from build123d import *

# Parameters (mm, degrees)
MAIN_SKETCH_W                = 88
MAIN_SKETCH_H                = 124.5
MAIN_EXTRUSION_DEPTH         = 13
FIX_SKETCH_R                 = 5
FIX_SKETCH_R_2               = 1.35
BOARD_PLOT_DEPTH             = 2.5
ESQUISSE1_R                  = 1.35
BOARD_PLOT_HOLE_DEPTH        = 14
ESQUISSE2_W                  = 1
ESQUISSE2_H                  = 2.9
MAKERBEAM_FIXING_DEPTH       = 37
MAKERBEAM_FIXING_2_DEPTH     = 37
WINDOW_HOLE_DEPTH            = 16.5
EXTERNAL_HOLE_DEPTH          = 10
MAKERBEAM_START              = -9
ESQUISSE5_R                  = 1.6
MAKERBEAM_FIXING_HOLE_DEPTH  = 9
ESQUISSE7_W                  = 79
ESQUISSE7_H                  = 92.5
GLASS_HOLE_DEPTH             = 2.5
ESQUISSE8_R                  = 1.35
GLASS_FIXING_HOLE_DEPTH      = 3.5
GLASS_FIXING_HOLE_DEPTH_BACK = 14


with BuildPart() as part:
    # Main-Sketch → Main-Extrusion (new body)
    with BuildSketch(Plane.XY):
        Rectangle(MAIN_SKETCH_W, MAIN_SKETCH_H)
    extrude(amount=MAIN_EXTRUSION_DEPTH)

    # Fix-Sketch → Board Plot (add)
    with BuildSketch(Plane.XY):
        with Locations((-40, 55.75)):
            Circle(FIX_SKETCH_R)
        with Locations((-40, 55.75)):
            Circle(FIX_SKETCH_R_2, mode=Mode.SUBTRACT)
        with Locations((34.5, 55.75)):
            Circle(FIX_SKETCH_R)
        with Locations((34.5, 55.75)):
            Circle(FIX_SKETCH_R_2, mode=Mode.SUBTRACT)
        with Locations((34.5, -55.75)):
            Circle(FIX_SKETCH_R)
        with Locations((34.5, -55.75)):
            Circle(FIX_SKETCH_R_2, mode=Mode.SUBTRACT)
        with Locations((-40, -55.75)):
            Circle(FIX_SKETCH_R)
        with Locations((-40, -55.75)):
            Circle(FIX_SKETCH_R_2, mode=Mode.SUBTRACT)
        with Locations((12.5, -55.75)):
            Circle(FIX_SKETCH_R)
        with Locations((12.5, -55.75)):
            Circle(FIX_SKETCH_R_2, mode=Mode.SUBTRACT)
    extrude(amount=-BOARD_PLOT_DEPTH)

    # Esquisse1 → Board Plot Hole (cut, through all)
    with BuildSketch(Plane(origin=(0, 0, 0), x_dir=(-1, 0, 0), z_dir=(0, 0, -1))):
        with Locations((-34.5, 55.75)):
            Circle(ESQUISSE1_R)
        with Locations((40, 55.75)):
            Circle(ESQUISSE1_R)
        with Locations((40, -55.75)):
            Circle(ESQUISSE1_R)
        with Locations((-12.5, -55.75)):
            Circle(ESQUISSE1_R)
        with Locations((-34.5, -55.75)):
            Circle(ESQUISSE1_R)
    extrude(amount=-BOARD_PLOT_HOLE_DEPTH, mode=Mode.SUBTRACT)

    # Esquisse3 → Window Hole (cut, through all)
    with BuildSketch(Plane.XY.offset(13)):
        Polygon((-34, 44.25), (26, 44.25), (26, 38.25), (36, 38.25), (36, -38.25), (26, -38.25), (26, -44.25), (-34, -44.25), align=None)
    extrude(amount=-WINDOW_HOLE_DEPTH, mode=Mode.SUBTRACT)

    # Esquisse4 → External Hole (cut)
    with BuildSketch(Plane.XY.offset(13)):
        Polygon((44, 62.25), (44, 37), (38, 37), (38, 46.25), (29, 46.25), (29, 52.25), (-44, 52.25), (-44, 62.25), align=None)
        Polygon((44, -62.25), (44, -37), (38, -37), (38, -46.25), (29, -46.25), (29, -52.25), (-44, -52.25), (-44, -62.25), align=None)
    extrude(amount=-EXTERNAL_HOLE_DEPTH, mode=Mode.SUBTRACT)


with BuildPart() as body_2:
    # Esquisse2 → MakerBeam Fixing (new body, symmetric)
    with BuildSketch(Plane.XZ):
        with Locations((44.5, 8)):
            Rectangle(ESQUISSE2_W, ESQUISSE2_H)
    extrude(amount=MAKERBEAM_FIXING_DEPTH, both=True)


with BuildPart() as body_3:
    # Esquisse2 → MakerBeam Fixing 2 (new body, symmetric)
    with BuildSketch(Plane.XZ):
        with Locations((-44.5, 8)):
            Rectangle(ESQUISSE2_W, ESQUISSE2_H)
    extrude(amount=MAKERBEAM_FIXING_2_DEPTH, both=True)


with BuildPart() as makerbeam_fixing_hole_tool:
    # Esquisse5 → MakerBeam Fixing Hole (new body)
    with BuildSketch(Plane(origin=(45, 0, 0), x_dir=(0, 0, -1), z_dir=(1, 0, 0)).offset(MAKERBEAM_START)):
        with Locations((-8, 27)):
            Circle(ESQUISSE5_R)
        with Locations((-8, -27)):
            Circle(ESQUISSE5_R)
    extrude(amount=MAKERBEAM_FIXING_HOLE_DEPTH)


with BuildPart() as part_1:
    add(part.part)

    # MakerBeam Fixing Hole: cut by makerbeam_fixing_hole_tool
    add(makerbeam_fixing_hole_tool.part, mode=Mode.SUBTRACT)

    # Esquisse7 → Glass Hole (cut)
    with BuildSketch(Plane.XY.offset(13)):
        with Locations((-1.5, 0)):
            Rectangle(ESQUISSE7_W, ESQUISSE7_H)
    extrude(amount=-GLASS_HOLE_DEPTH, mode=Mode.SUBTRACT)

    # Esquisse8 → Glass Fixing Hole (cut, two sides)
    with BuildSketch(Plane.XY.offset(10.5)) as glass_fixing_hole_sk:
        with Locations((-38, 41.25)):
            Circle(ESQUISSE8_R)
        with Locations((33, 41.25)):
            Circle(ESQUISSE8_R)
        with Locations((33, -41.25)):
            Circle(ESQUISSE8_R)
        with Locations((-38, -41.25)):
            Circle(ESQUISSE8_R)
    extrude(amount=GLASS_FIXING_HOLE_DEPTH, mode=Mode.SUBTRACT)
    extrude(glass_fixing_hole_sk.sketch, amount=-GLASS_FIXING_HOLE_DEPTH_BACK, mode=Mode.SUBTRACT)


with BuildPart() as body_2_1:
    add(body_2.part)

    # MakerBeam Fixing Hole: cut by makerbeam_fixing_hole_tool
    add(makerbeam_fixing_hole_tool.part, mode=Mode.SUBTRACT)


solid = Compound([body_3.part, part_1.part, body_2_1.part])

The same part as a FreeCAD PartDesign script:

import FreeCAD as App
import Part
import Sketcher

doc = App.newDocument("Part")
body = doc.addObject("PartDesign::Body", "Body")

# Sketch on XY plane
sketch1 = doc.addObject("Sketcher::SketchObject", "Sketch")
body.addObject(sketch1)
sketch1.AttachmentSupport = (doc.XY_Plane, [""])
sketch1.MapMode = "FlatFace"
sketch1.addGeometry(Part.LineSegment(App.Vector(-44, 62, 0), App.Vector(-44, -62, 0)), False)
sketch1.addGeometry(Part.LineSegment(App.Vector(-44, -62, 0), App.Vector(44, -62, 0)), False)
sketch1.addGeometry(Part.LineSegment(App.Vector(44, -62, 0), App.Vector(44, 62, 0)), False)
sketch1.addGeometry(Part.LineSegment(App.Vector(44, 62, 0), App.Vector(-44, 62, 0)), False)
sketch1.addConstraint(Sketcher.Constraint("Coincident", 0, 2, 1, 1))
sketch1.addConstraint(Sketcher.Constraint("Coincident", 1, 2, 2, 1))
sketch1.addConstraint(Sketcher.Constraint("Coincident", 2, 2, 3, 1))
sketch1.addConstraint(Sketcher.Constraint("Coincident", 3, 2, 0, 1))
sketch1.addConstraint(Sketcher.Constraint("Vertical", 0))
sketch1.addConstraint(Sketcher.Constraint("Horizontal", 1))
sketch1.addConstraint(Sketcher.Constraint("Vertical", 2))
sketch1.addConstraint(Sketcher.Constraint("Horizontal", 3))
sketch1.addConstraint(Sketcher.Constraint("Symmetric", 0, 2, 2, 2, -1, 1))
sketch1.addConstraint(Sketcher.Constraint("DistanceX", 1, 1, 1, 2, 88.0))
sketch1.addConstraint(Sketcher.Constraint("DistanceY", 0, 2, 0, 1, 124.5))
pad1 = doc.addObject("PartDesign::Pad", "Pad")
body.addObject(pad1)
pad1.Profile = sketch1
pad1.Length = 13

# Sketch on XY plane
sketch2 = doc.addObject("Sketcher::SketchObject", "Sketch001")
body.addObject(sketch2)
sketch2.AttachmentSupport = (doc.XY_Plane, [""])
sketch2.MapMode = "FlatFace"
sketch2.addGeometry(Part.Circle(App.Vector(-40, 55.8, 0), App.Vector(0, 0, 1), 5), False)
sketch2.addGeometry(Part.Circle(App.Vector(-40, 55.8, 0), App.Vector(0, 0, 1), 1.4), False)
sketch2.addGeometry(Part.Circle(App.Vector(34.5, 55.8, 0), App.Vector(0, 0, 1), 5), False)
sketch2.addGeometry(Part.Circle(App.Vector(34.5, 55.8, 0), App.Vector(0, 0, 1), 1.4), False)
sketch2.addGeometry(Part.Circle(App.Vector(34.5, -55.8, 0), App.Vector(0, 0, 1), 5), False)
sketch2.addGeometry(Part.Circle(App.Vector(34.5, -55.8, 0), App.Vector(0, 0, 1), 1.4), False)
sketch2.addGeometry(Part.Circle(App.Vector(-40, -55.8, 0), App.Vector(0, 0, 1), 5), False)
sketch2.addGeometry(Part.Circle(App.Vector(-40, -55.8, 0), App.Vector(0, 0, 1), 1.4), False)
sketch2.addGeometry(Part.Circle(App.Vector(12.5, -55.8, 0), App.Vector(0, 0, 1), 5), False)
sketch2.addGeometry(Part.Circle(App.Vector(12.5, -55.8, 0), App.Vector(0, 0, 1), 1.4), False)
sketch2.addConstraint(Sketcher.Constraint("Coincident", 1, 3, 0, 3))
sketch2.addConstraint(Sketcher.Constraint("Coincident", 3, 3, 2, 3))
sketch2.addConstraint(Sketcher.Constraint("Coincident", 5, 3, 4, 3))
sketch2.addConstraint(Sketcher.Constraint("Coincident", 7, 3, 6, 3))
sketch2.addConstraint(Sketcher.Constraint("Coincident", 9, 3, 8, 3))
sketch2.addConstraint(Sketcher.Constraint("Equal", 0, 2))
sketch2.addConstraint(Sketcher.Constraint("Equal", 1, 3))
sketch2.addConstraint(Sketcher.Constraint("Equal", 2, 4))
sketch2.addConstraint(Sketcher.Constraint("Equal", 3, 5))
sketch2.addConstraint(Sketcher.Constraint("Equal", 4, 6))
sketch2.addConstraint(Sketcher.Constraint("Equal", 5, 7))
sketch2.addConstraint(Sketcher.Constraint("Equal", 6, 8))
sketch2.addConstraint(Sketcher.Constraint("Equal", 7, 9))
sketch2.addConstraint(Sketcher.Constraint("Symmetric", 2, 3, 4, 3, -1))
sketch2.addConstraint(Sketcher.Constraint("Symmetric", 0, 3, 6, 3, -1))
sketch2.addConstraint(Sketcher.Constraint("Horizontal", 1, 3, 2, 3))
sketch2.addConstraint(Sketcher.Constraint("Horizontal", 7, 3, 8, 3))
sketch2.addConstraint(Sketcher.Constraint("Diameter", 0, 10.0))
sketch2.addConstraint(Sketcher.Constraint("Diameter", 1, 2.7))
sketch2.addConstraint(Sketcher.Constraint("DistanceX", 0, 3, -1, 1, 40.0))
sketch2.addConstraint(Sketcher.Constraint("DistanceX", 8, 3, 4, 3, 22.0))
sketch2.addConstraint(Sketcher.Constraint("DistanceX", -1, 1, 2, 3, 34.5))
sketch2.addConstraint(Sketcher.Constraint("DistanceY", 4, 3, 2, 3, 111.5))
pad2 = doc.addObject("PartDesign::Pad", "Pad001")
body.addObject(pad2)
pad2.Profile = sketch2
pad2.Length = 2.5
pad2.Reversed = True

# Sketch on XY plane
sketch3 = doc.addObject("Sketcher::SketchObject", "Sketch002")
body.addObject(sketch3)
sketch3.AttachmentSupport = (doc.XY_Plane, [""])
sketch3.MapMode = "FlatFace"
sketch3.addGeometry(Part.Circle(App.Vector(34.5, 55.8, 0), App.Vector(0, 0, 1), 1.4), False)
sketch3.addGeometry(Part.Circle(App.Vector(-40, 55.8, 0), App.Vector(0, 0, 1), 1.4), False)
sketch3.addGeometry(Part.Circle(App.Vector(-40, -55.8, 0), App.Vector(0, 0, 1), 1.4), False)
sketch3.addGeometry(Part.Circle(App.Vector(12.5, -55.8, 0), App.Vector(0, 0, 1), 1.4), False)
sketch3.addGeometry(Part.Circle(App.Vector(34.5, -55.8, 0), App.Vector(0, 0, 1), 1.4), False)
sketch3.addConstraint(Sketcher.Constraint("Equal", 0, 1))
sketch3.addConstraint(Sketcher.Constraint("Equal", 1, 2))
sketch3.addConstraint(Sketcher.Constraint("Equal", 2, 3))
sketch3.addConstraint(Sketcher.Constraint("Equal", 3, 4))
sketch3.addConstraint(Sketcher.Constraint("Symmetric", 1, 3, 2, 3, -1))
sketch3.addConstraint(Sketcher.Constraint("Symmetric", 0, 3, 4, 3, -1))
sketch3.addConstraint(Sketcher.Constraint("Horizontal", 0, 3, 1, 3))
sketch3.addConstraint(Sketcher.Constraint("Horizontal", 2, 3, 3, 3))
sketch3.addConstraint(Sketcher.Constraint("Diameter", 0, 2.7))
sketch3.addConstraint(Sketcher.Constraint("DistanceX", 1, 3, -1, 1, 40.0))
sketch3.addConstraint(Sketcher.Constraint("DistanceX", 3, 3, 0, 3, 22.0))
sketch3.addConstraint(Sketcher.Constraint("DistanceX", -1, 1, 0, 3, 34.5))
sketch3.addConstraint(Sketcher.Constraint("DistanceY", 2, 3, 1, 3, 111.5))
pocket1 = doc.addObject("PartDesign::Pocket", "Pocket")
body.addObject(pocket1)
pocket1.Profile = sketch3
pocket1.Type = "ThroughAll"
pocket1.Reversed = True

# Sketch on XY plane
sketch4 = doc.addObject("Sketcher::SketchObject", "Sketch003")
body.addObject(sketch4)
sketch4.AttachmentSupport = (doc.XY_Plane, [""])
sketch4.MapMode = "FlatFace"
sketch4.AttachmentOffset = App.Placement(App.Vector(0, 0, 13), App.Rotation())
sketch4.addGeometry(Part.LineSegment(App.Vector(26, 44, 0), App.Vector(-34, 44, 0)), False)
sketch4.addGeometry(Part.LineSegment(App.Vector(-34, 44, 0), App.Vector(-34, -44, 0)), False)
sketch4.addGeometry(Part.LineSegment(App.Vector(-34, -44, 0), App.Vector(26, -44, 0)), False)
sketch4.addGeometry(Part.LineSegment(App.Vector(26, -44, 0), App.Vector(26, -38, 0)), False)
sketch4.addGeometry(Part.LineSegment(App.Vector(26, -38, 0), App.Vector(36, -38, 0)), False)
sketch4.addGeometry(Part.LineSegment(App.Vector(36, -38, 0), App.Vector(36, 38, 0)), False)
sketch4.addGeometry(Part.LineSegment(App.Vector(36, 38, 0), App.Vector(26, 38, 0)), False)
sketch4.addGeometry(Part.LineSegment(App.Vector(26, 38, 0), App.Vector(26, 44, 0)), False)
sketch4.addConstraint(Sketcher.Constraint("Coincident", 0, 2, 1, 1))
sketch4.addConstraint(Sketcher.Constraint("Coincident", 1, 2, 2, 1))
sketch4.addConstraint(Sketcher.Constraint("Coincident", 2, 2, 3, 1))
sketch4.addConstraint(Sketcher.Constraint("Coincident", 3, 2, 4, 1))
sketch4.addConstraint(Sketcher.Constraint("Coincident", 4, 2, 5, 1))
sketch4.addConstraint(Sketcher.Constraint("Coincident", 5, 2, 6, 1))
sketch4.addConstraint(Sketcher.Constraint("Coincident", 6, 2, 7, 1))
sketch4.addConstraint(Sketcher.Constraint("Coincident", 7, 2, 0, 1))
sketch4.addConstraint(Sketcher.Constraint("Horizontal", 0))
sketch4.addConstraint(Sketcher.Constraint("Vertical", 1))
sketch4.addConstraint(Sketcher.Constraint("Horizontal", 2))
sketch4.addConstraint(Sketcher.Constraint("Vertical", 3))
sketch4.addConstraint(Sketcher.Constraint("Horizontal", 4))
sketch4.addConstraint(Sketcher.Constraint("Vertical", 5))
sketch4.addConstraint(Sketcher.Constraint("Horizontal", 6))
sketch4.addConstraint(Sketcher.Constraint("Vertical", 7))
sketch4.addConstraint(Sketcher.Constraint("Symmetric", 3, 2, 6, 2, -1))
sketch4.addConstraint(Sketcher.Constraint("Equal", 3, 7))
sketch4.addConstraint(Sketcher.Constraint("DistanceX", 0, 2, 0, 1, 60.0))
sketch4.addConstraint(Sketcher.Constraint("DistanceX", 4, 1, 4, 2, 10.0))
sketch4.addConstraint(Sketcher.Constraint("DistanceY", 3, 1, 3, 2, 6.0))
sketch4.addConstraint(Sketcher.Constraint("DistanceY", 1, 2, 1, 1, 88.5))
sketch4.addConstraint(Sketcher.Constraint("DistanceX", 0, 2, -1, 1, 34.0))
pocket2 = doc.addObject("PartDesign::Pocket", "Pocket001")
body.addObject(pocket2)
pocket2.Profile = sketch4
pocket2.Type = "ThroughAll"

# Sketch on XY plane
sketch5 = doc.addObject("Sketcher::SketchObject", "Sketch004")
body.addObject(sketch5)
sketch5.AttachmentSupport = (doc.XY_Plane, [""])
sketch5.MapMode = "FlatFace"
sketch5.AttachmentOffset = App.Placement(App.Vector(0, 0, 13), App.Rotation())
sketch5.addGeometry(Part.LineSegment(App.Vector(44, 37, 0), App.Vector(44, 62, 0)), False)
sketch5.addGeometry(Part.LineSegment(App.Vector(44, 62, 0), App.Vector(-44, 62, 0)), False)
sketch5.addGeometry(Part.LineSegment(App.Vector(-44, 62, 0), App.Vector(-44, 52, 0)), False)
sketch5.addGeometry(Part.LineSegment(App.Vector(-44, 52, 0), App.Vector(29, 52, 0)), False)
sketch5.addGeometry(Part.LineSegment(App.Vector(29, 52, 0), App.Vector(29, 46, 0)), False)
sketch5.addGeometry(Part.LineSegment(App.Vector(29, 46, 0), App.Vector(38, 46, 0)), False)
sketch5.addGeometry(Part.LineSegment(App.Vector(38, 46, 0), App.Vector(38, 37, 0)), False)
sketch5.addGeometry(Part.LineSegment(App.Vector(38, 37, 0), App.Vector(44, 37, 0)), False)
sketch5.addGeometry(Part.LineSegment(App.Vector(44, -62, 0), App.Vector(44, -37, 0)), False)
sketch5.addGeometry(Part.LineSegment(App.Vector(44, -37, 0), App.Vector(38, -37, 0)), False)
sketch5.addGeometry(Part.LineSegment(App.Vector(38, -37, 0), App.Vector(38, -46, 0)), False)
sketch5.addGeometry(Part.LineSegment(App.Vector(38, -46, 0), App.Vector(29, -46, 0)), False)
sketch5.addGeometry(Part.LineSegment(App.Vector(29, -46, 0), App.Vector(29, -52, 0)), False)
sketch5.addGeometry(Part.LineSegment(App.Vector(29, -52, 0), App.Vector(-44, -52, 0)), False)
sketch5.addGeometry(Part.LineSegment(App.Vector(-44, -52, 0), App.Vector(-44, -62, 0)), False)
sketch5.addGeometry(Part.LineSegment(App.Vector(-44, -62, 0), App.Vector(44, -62, 0)), False)
sketch5.addConstraint(Sketcher.Constraint("Coincident", 0, 2, 1, 1))
sketch5.addConstraint(Sketcher.Constraint("Coincident", 1, 2, 2, 1))
sketch5.addConstraint(Sketcher.Constraint("Coincident", 2, 2, 3, 1))
sketch5.addConstraint(Sketcher.Constraint("Coincident", 3, 2, 4, 1))
sketch5.addConstraint(Sketcher.Constraint("Coincident", 4, 2, 5, 1))
sketch5.addConstraint(Sketcher.Constraint("Coincident", 5, 2, 6, 1))
sketch5.addConstraint(Sketcher.Constraint("Coincident", 6, 2, 7, 1))
sketch5.addConstraint(Sketcher.Constraint("Coincident", 7, 2, 0, 1))
sketch5.addConstraint(Sketcher.Constraint("Coincident", 8, 2, 9, 1))
sketch5.addConstraint(Sketcher.Constraint("Coincident", 9, 2, 10, 1))
sketch5.addConstraint(Sketcher.Constraint("Coincident", 10, 2, 11, 1))
sketch5.addConstraint(Sketcher.Constraint("Coincident", 11, 2, 12, 1))
sketch5.addConstraint(Sketcher.Constraint("Coincident", 12, 2, 13, 1))
sketch5.addConstraint(Sketcher.Constraint("Coincident", 13, 2, 14, 1))
sketch5.addConstraint(Sketcher.Constraint("Coincident", 14, 2, 15, 1))
sketch5.addConstraint(Sketcher.Constraint("Coincident", 15, 2, 8, 1))
sketch5.addConstraint(Sketcher.Constraint("Vertical", 0))
sketch5.addConstraint(Sketcher.Constraint("Horizontal", 1))
sketch5.addConstraint(Sketcher.Constraint("Vertical", 2))
sketch5.addConstraint(Sketcher.Constraint("Horizontal", 3))
sketch5.addConstraint(Sketcher.Constraint("Vertical", 4))
sketch5.addConstraint(Sketcher.Constraint("Horizontal", 5))
sketch5.addConstraint(Sketcher.Constraint("Vertical", 6))
sketch5.addConstraint(Sketcher.Constraint("Horizontal", 7))
sketch5.addConstraint(Sketcher.Constraint("Vertical", 8))
sketch5.addConstraint(Sketcher.Constraint("Horizontal", 9))
sketch5.addConstraint(Sketcher.Constraint("Vertical", 10))
sketch5.addConstraint(Sketcher.Constraint("Horizontal", 11))
sketch5.addConstraint(Sketcher.Constraint("Vertical", 12))
sketch5.addConstraint(Sketcher.Constraint("Horizontal", 13))
sketch5.addConstraint(Sketcher.Constraint("Vertical", 14))
sketch5.addConstraint(Sketcher.Constraint("Horizontal", 15))
sketch5.addConstraint(Sketcher.Constraint("Symmetric", 0, 2, 14, 2, -1, 1))
sketch5.addConstraint(Sketcher.Constraint("Symmetric", 7, 2, 8, 2, -1))
sketch5.addConstraint(Sketcher.Constraint("Symmetric", 5, 2, 10, 2, -1))
sketch5.addConstraint(Sketcher.Constraint("Symmetric", 3, 2, 12, 2, -1))
sketch5.addConstraint(Sketcher.Constraint("Vertical", 2, 2, 13, 2))
sketch5.addConstraint(Sketcher.Constraint("Equal", 9, 4))
sketch5.addConstraint(Sketcher.Constraint("DistanceX", 1, 2, 1, 1, 88.0))
sketch5.addConstraint(Sketcher.Constraint("DistanceX", 3, 1, 3, 2, 73.0))
sketch5.addConstraint(Sketcher.Constraint("DistanceX", 5, 1, 5, 2, 9.0))
sketch5.addConstraint(Sketcher.Constraint("DistanceY", 2, 2, 2, 1, 10.0))
sketch5.addConstraint(Sketcher.Constraint("DistanceY", -1, 1, 6, 2, 37.0))
sketch5.addConstraint(Sketcher.Constraint("DistanceY", 0, 1, 0, 2, 25.25))
pocket3 = doc.addObject("PartDesign::Pocket", "Pocket002")
body.addObject(pocket3)
pocket3.Profile = sketch5
pocket3.Length = 10
body2 = doc.addObject("PartDesign::Body", "Body001")

# Sketch on XZ plane
sketch6 = doc.addObject("Sketcher::SketchObject", "Sketch005")
body2.addObject(sketch6)
sketch6.AttachmentSupport = (doc.getObject("XZ_Plane001"), [""])
sketch6.MapMode = "FlatFace"
sketch6.addGeometry(Part.LineSegment(App.Vector(44, 9.4, 0), App.Vector(44, 6.5, 0)), False)
sketch6.addGeometry(Part.LineSegment(App.Vector(44, 6.5, 0), App.Vector(45, 6.5, 0)), False)
sketch6.addGeometry(Part.LineSegment(App.Vector(45, 6.5, 0), App.Vector(45, 9.4, 0)), False)
sketch6.addGeometry(Part.LineSegment(App.Vector(45, 9.4, 0), App.Vector(44, 9.4, 0)), False)
sketch6.addConstraint(Sketcher.Constraint("Coincident", 0, 2, 1, 1))
sketch6.addConstraint(Sketcher.Constraint("Coincident", 1, 2, 2, 1))
sketch6.addConstraint(Sketcher.Constraint("Coincident", 2, 2, 3, 1))
sketch6.addConstraint(Sketcher.Constraint("Coincident", 3, 2, 0, 1))
sketch6.addConstraint(Sketcher.Constraint("Vertical", 0))
sketch6.addConstraint(Sketcher.Constraint("Horizontal", 1))
sketch6.addConstraint(Sketcher.Constraint("Vertical", 2))
sketch6.addConstraint(Sketcher.Constraint("Horizontal", 3))
sketch6.addConstraint(Sketcher.Constraint("DistanceX", 1, 1, 1, 2, 1.0))
sketch6.addConstraint(Sketcher.Constraint("DistanceY", 0, 2, 0, 1, 2.9))
sketch6.addConstraint(Sketcher.Constraint("DistanceX", -1, 1, 0, 2, 44.0))
sketch6.addConstraint(Sketcher.Constraint("DistanceY", -1, 1, 0, 2, 6.55))
pad3 = doc.addObject("PartDesign::Pad", "Pad002")
body2.addObject(pad3)
pad3.Profile = sketch6
pad3.Length = 74
pad3.Midplane = True
body3 = doc.addObject("PartDesign::Body", "Body002")

# Sketch on XZ plane
sketch7 = doc.addObject("Sketcher::SketchObject", "Sketch006")
body3.addObject(sketch7)
sketch7.AttachmentSupport = (doc.getObject("XZ_Plane002"), [""])
sketch7.MapMode = "FlatFace"
sketch7.addGeometry(Part.LineSegment(App.Vector(-45, 9.4, 0), App.Vector(-45, 6.5, 0)), False)
sketch7.addGeometry(Part.LineSegment(App.Vector(-45, 6.5, 0), App.Vector(-44, 6.5, 0)), False)
sketch7.addGeometry(Part.LineSegment(App.Vector(-44, 6.5, 0), App.Vector(-44, 9.4, 0)), False)
sketch7.addGeometry(Part.LineSegment(App.Vector(-44, 9.4, 0), App.Vector(-45, 9.4, 0)), False)
sketch7.addConstraint(Sketcher.Constraint("Coincident", 0, 2, 1, 1))
sketch7.addConstraint(Sketcher.Constraint("Coincident", 1, 2, 2, 1))
sketch7.addConstraint(Sketcher.Constraint("Coincident", 2, 2, 3, 1))
sketch7.addConstraint(Sketcher.Constraint("Coincident", 3, 2, 0, 1))
sketch7.addConstraint(Sketcher.Constraint("Vertical", 0))
sketch7.addConstraint(Sketcher.Constraint("Horizontal", 1))
sketch7.addConstraint(Sketcher.Constraint("Vertical", 2))
sketch7.addConstraint(Sketcher.Constraint("Horizontal", 3))
sketch7.addConstraint(Sketcher.Constraint("DistanceX", 1, 1, 1, 2, 1.0))
sketch7.addConstraint(Sketcher.Constraint("DistanceY", 0, 2, 0, 1, 2.9))
sketch7.addConstraint(Sketcher.Constraint("DistanceX", 0, 2, -1, 1, 45.0))
sketch7.addConstraint(Sketcher.Constraint("DistanceY", -1, 1, 0, 2, 6.55))
pad4 = doc.addObject("PartDesign::Pad", "Pad003")
body3.addObject(pad4)
pad4.Profile = sketch7
pad4.Length = 74
pad4.Midplane = True
body4 = doc.addObject("PartDesign::Body", "Body003")
body4.AllowCompound = True

# Sketch on YZ plane
sketch8 = doc.addObject("Sketcher::SketchObject", "Sketch007")
body4.addObject(sketch8)
sketch8.AttachmentSupport = (doc.getObject("YZ_Plane003"), [""])
sketch8.MapMode = "FlatFace"
sketch8.AttachmentOffset = App.Placement(App.Vector(0, 0, 36), App.Rotation())
sketch8.addGeometry(Part.Circle(App.Vector(27, 8, 0), App.Vector(0, 0, 1), 1.6), False)
sketch8.addGeometry(Part.Circle(App.Vector(-27, 8, 0), App.Vector(0, 0, 1), 1.6), False)
sketch8.addConstraint(Sketcher.Constraint("Equal", 0, 1))
sketch8.addConstraint(Sketcher.Constraint("Symmetric", 0, 3, 1, 3, -2))
sketch8.addConstraint(Sketcher.Constraint("Diameter", 0, 3.2))
sketch8.addConstraint(Sketcher.Constraint("DistanceX", -1, 1, 0, 3, 27.0))
sketch8.addConstraint(Sketcher.Constraint("DistanceY", -1, 1, 0, 3, 8.0))
pad5 = doc.addObject("PartDesign::Pad", "Pad004")
body4.addObject(pad5)
pad5.Profile = sketch8
pad5.Length = 9
doc.recompute()

body5 = doc.addObject("PartDesign::Body", "Body004")
body5.BaseFeature = body4
boolean = doc.addObject("PartDesign::Boolean", "Boolean")
body.addObject(boolean)
boolean.Type = "Cut"
boolean.addObjects([body5])
doc.recompute()

# Sketch on XY plane
sketch9 = doc.addObject("Sketcher::SketchObject", "Sketch008")
body.addObject(sketch9)
sketch9.AttachmentSupport = (doc.XY_Plane, [""])
sketch9.MapMode = "FlatFace"
sketch9.AttachmentOffset = App.Placement(App.Vector(0, 0, 13), App.Rotation())
sketch9.addGeometry(Part.LineSegment(App.Vector(-41, 46, 0), App.Vector(-41, -46, 0)), False)
sketch9.addGeometry(Part.LineSegment(App.Vector(-41, -46, 0), App.Vector(38, -46, 0)), False)
sketch9.addGeometry(Part.LineSegment(App.Vector(38, -46, 0), App.Vector(38, 46, 0)), False)
sketch9.addGeometry(Part.LineSegment(App.Vector(38, 46, 0), App.Vector(-41, 46, 0)), False)
sketch9.addConstraint(Sketcher.Constraint("Coincident", 0, 2, 1, 1))
sketch9.addConstraint(Sketcher.Constraint("Coincident", 1, 2, 2, 1))
sketch9.addConstraint(Sketcher.Constraint("Coincident", 2, 2, 3, 1))
sketch9.addConstraint(Sketcher.Constraint("Coincident", 3, 2, 0, 1))
sketch9.addConstraint(Sketcher.Constraint("Vertical", 0))
sketch9.addConstraint(Sketcher.Constraint("Horizontal", 1))
sketch9.addConstraint(Sketcher.Constraint("Vertical", 2))
sketch9.addConstraint(Sketcher.Constraint("Horizontal", 3))
sketch9.addConstraint(Sketcher.Constraint("DistanceX", 1, 1, 1, 2, 79.0))
sketch9.addConstraint(Sketcher.Constraint("DistanceY", 0, 2, 0, 1, 92.5))
sketch9.addConstraint(Sketcher.Constraint("DistanceX", 0, 2, -1, 1, 41.0))
sketch9.addConstraint(Sketcher.Constraint("DistanceY", 0, 2, -1, 1, 46.25))
pocket4 = doc.addObject("PartDesign::Pocket", "Pocket003")
body.addObject(pocket4)
pocket4.Profile = sketch9
pocket4.Length = 2.5

# Sketch on XY plane
sketch10 = doc.addObject("Sketcher::SketchObject", "Sketch009")
body.addObject(sketch10)
sketch10.AttachmentSupport = (doc.XY_Plane, [""])
sketch10.MapMode = "FlatFace"
sketch10.AttachmentOffset = App.Placement(App.Vector(0, 0, 10.5), App.Rotation())
sketch10.addGeometry(Part.Circle(App.Vector(-38, 41.2, 0), App.Vector(0, 0, 1), 1.4), False)
sketch10.addGeometry(Part.Circle(App.Vector(33, 41.2, 0), App.Vector(0, 0, 1), 1.4), False)
sketch10.addGeometry(Part.Circle(App.Vector(33, -41.2, 0), App.Vector(0, 0, 1), 1.4), False)
sketch10.addGeometry(Part.Circle(App.Vector(-38, -41.2, 0), App.Vector(0, 0, 1), 1.4), False)
sketch10.addConstraint(Sketcher.Constraint("Equal", 0, 1))
sketch10.addConstraint(Sketcher.Constraint("Equal", 1, 2))
sketch10.addConstraint(Sketcher.Constraint("Equal", 2, 3))
sketch10.addConstraint(Sketcher.Constraint("Symmetric", 1, 3, 2, 3, -1))
sketch10.addConstraint(Sketcher.Constraint("Symmetric", 0, 3, 3, 3, -1))
sketch10.addConstraint(Sketcher.Constraint("Horizontal", 0, 3, 1, 3))
sketch10.addConstraint(Sketcher.Constraint("Diameter", 0, 2.7))
sketch10.addConstraint(Sketcher.Constraint("DistanceX", 0, 3, -1, 1, 38.0))
sketch10.addConstraint(Sketcher.Constraint("DistanceX", -1, 1, 1, 3, 33.0))
sketch10.addConstraint(Sketcher.Constraint("DistanceY", 2, 3, 1, 3, 82.5))
pocket5 = doc.addObject("PartDesign::Pocket", "Pocket004")
body.addObject(pocket5)
pocket5.Profile = sketch10
pocket5.Type = "ThroughAll"
pocket5.Midplane = True
body2.AllowCompound = True
doc.recompute()

boolean2 = doc.addObject("PartDesign::Boolean", "Boolean001")
body2.addObject(boolean2)
boolean2.Type = "Cut"
boolean2.addObjects([body4])

doc.recompute()
